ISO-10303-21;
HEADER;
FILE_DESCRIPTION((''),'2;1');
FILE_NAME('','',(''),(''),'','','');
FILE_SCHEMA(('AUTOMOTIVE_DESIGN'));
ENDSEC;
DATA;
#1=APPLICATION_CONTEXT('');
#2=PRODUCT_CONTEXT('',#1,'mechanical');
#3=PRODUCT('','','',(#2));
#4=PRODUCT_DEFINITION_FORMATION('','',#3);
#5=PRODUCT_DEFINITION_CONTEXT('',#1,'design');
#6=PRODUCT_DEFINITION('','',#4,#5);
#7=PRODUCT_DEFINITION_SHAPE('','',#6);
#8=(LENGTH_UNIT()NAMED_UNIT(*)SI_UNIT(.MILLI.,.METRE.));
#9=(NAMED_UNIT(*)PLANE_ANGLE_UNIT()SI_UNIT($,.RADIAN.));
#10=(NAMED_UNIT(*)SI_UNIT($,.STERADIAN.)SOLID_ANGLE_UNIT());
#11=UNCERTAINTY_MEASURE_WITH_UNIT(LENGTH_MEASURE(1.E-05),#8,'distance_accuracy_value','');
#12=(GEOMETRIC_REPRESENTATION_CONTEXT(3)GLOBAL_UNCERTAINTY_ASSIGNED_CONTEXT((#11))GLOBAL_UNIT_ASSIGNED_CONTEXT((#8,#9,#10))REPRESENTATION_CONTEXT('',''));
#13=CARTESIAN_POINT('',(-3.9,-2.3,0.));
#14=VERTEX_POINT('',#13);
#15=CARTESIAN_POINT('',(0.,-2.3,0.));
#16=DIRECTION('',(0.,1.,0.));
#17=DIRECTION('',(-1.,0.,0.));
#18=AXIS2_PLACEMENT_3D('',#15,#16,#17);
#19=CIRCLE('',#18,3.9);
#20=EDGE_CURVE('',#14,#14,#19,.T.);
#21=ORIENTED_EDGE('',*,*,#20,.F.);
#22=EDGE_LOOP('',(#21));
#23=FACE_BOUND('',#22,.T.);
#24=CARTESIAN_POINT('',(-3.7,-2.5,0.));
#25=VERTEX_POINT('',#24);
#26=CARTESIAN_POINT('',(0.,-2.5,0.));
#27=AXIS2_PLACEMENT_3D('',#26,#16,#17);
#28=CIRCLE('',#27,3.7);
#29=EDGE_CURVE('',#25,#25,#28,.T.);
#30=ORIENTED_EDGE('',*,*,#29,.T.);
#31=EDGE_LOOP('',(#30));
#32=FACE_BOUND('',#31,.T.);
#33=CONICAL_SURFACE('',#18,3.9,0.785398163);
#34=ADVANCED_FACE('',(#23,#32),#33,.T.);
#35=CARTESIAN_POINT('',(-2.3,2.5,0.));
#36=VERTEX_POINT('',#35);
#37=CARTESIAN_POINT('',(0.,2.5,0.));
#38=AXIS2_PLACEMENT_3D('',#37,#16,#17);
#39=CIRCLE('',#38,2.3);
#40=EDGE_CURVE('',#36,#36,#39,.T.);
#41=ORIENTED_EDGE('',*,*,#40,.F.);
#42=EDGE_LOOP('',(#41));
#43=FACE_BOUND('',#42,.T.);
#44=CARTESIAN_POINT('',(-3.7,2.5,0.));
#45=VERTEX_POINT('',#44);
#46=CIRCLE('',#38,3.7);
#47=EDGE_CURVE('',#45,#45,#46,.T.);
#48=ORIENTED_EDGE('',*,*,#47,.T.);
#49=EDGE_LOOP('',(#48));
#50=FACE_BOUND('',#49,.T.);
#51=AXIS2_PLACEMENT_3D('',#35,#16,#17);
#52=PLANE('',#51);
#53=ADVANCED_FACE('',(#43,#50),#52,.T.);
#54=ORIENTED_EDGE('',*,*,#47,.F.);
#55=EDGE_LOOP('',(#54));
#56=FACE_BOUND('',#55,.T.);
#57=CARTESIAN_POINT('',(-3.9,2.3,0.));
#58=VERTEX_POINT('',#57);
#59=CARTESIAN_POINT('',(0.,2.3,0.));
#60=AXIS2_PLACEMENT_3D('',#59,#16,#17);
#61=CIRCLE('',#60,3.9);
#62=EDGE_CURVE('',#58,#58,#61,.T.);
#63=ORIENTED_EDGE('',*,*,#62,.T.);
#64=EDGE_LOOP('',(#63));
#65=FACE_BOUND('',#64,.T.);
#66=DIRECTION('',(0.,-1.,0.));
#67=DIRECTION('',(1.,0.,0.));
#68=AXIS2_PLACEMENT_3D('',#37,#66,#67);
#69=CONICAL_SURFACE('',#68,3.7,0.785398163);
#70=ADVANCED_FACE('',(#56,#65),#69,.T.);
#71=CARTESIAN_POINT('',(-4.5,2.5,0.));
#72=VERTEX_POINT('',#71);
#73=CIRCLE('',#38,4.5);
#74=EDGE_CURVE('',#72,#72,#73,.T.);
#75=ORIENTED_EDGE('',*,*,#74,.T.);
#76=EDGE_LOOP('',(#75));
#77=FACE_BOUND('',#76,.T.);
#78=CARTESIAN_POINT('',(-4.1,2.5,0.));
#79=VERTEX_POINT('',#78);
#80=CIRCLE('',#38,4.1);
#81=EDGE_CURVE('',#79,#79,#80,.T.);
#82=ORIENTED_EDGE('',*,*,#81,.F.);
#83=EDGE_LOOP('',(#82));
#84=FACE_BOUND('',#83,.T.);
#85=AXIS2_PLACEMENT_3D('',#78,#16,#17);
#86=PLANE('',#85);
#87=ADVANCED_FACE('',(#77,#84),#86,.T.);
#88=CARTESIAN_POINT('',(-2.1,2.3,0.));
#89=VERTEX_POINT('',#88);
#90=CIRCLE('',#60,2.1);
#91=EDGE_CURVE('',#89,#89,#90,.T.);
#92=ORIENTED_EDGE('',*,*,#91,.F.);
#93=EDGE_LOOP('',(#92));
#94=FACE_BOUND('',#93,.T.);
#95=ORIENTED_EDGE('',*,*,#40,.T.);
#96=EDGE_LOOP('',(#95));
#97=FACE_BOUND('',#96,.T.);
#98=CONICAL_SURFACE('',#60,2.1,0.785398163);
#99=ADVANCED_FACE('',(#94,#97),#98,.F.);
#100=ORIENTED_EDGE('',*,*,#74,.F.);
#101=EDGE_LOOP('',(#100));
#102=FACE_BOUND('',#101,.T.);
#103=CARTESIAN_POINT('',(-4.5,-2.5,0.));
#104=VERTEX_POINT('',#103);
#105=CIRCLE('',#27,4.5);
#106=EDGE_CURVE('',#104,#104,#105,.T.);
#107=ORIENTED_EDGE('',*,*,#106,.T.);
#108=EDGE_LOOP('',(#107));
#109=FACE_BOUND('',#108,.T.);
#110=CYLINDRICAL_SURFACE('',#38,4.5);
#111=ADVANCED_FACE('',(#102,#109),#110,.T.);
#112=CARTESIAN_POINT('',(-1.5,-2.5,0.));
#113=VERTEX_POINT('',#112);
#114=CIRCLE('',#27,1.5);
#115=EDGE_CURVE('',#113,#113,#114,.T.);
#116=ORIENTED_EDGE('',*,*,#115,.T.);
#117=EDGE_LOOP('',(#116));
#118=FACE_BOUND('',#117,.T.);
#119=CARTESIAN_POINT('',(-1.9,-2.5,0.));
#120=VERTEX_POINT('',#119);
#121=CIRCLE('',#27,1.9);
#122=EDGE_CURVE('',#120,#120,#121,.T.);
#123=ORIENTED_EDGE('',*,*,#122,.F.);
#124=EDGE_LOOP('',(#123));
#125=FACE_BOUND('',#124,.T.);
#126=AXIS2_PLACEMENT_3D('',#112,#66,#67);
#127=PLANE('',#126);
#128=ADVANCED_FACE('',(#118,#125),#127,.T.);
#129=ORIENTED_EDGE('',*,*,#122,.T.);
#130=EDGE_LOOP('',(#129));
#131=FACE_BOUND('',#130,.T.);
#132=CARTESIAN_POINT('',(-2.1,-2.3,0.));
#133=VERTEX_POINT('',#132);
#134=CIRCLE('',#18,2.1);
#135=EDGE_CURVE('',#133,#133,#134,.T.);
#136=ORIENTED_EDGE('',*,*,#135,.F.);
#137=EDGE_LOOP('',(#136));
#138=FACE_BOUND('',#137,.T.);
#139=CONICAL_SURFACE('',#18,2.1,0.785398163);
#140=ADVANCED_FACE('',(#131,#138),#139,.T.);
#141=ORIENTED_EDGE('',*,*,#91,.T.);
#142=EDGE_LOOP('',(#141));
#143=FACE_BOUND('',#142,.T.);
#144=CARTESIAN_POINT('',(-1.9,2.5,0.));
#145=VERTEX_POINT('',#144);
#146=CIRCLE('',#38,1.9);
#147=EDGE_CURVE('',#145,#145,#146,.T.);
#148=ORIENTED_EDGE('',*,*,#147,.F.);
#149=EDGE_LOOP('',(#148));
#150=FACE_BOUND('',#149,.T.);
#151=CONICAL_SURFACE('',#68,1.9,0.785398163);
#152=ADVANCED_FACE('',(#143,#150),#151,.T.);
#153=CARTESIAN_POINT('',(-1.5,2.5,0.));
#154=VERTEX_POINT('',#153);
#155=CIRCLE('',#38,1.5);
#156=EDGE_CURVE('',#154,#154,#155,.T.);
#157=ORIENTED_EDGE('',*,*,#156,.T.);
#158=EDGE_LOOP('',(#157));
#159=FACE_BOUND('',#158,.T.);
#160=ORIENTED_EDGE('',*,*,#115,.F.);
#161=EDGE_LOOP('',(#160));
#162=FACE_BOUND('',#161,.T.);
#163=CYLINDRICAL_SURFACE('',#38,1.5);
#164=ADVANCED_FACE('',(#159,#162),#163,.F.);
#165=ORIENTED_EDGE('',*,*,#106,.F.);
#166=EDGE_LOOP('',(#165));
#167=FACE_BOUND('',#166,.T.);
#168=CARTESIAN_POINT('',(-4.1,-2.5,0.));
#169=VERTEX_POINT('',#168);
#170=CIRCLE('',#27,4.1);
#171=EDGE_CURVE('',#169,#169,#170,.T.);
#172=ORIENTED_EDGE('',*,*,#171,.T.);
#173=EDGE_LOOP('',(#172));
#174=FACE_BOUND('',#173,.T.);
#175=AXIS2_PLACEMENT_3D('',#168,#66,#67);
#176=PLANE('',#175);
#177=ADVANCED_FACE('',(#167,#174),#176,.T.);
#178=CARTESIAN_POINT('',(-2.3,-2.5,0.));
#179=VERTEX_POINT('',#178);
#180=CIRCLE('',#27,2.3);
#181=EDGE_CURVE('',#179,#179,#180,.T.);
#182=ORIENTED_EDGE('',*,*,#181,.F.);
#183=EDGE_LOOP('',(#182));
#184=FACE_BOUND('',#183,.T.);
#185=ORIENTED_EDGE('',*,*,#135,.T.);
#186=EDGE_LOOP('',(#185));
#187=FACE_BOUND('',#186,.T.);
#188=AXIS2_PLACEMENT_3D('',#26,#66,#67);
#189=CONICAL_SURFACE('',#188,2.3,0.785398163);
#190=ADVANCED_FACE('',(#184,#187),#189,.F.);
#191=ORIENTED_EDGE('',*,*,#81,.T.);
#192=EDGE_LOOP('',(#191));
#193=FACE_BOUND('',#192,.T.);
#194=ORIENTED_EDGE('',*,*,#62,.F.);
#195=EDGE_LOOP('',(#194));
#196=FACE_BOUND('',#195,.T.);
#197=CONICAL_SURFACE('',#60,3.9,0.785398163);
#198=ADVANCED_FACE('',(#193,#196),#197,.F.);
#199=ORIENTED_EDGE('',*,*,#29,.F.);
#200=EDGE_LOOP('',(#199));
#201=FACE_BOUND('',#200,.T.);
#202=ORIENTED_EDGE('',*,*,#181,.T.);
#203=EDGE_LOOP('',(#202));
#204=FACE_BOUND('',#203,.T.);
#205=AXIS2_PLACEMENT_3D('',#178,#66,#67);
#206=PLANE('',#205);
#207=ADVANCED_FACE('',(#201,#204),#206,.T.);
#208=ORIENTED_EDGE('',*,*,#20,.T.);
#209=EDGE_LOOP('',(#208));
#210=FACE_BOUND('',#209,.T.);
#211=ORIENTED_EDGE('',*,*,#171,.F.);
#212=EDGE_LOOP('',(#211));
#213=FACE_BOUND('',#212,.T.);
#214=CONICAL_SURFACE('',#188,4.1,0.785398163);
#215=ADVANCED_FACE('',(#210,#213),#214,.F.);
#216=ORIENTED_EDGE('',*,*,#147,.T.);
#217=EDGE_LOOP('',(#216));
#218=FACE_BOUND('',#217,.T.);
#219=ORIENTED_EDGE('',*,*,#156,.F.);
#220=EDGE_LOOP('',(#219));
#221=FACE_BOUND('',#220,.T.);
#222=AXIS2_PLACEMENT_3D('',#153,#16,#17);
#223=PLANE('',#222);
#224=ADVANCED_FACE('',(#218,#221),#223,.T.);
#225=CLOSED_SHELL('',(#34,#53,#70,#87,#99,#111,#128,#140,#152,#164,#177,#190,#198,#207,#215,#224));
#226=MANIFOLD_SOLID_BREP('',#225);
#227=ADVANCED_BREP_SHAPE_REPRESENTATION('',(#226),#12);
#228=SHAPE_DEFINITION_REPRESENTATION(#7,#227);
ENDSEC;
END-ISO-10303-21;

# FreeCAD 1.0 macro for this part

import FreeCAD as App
import Part
import Sketcher

doc = App.newDocument("Part")
params = doc.addObject("Spreadsheet::Sheet", "Params")
for row, (alias, value) in enumerate([
    ("sketch1_height", "5 mm"),
    ("sketch1_width", "0.4 mm"),
    ("sketch1_width2", "1.4 mm"),
    ("revolution_angle", "360 deg"),
], start=1):
    params.set(f"A{row}", alias)
    params.set(f"B{row}", "=" + value)
    params.setAlias(f"B{row}", alias)

body = doc.addObject("PartDesign::Body", "Body")

# Sketch on XY plane
sketch1 = body.newObject("Sketcher::SketchObject", "Sketch")
sketch1.AttachmentSupport = (doc.getObject("XY_Plane"), [""])
sketch1.MapMode = "FlatFace"
sketch1.addGeometry([
    Part.LineSegment(App.Vector(-1.5, 2.5, 0), App.Vector(-1.9, 2.5, 0)),  # 0
    Part.LineSegment(App.Vector(-1.9, 2.5, 0), App.Vector(-2.1, 2.3, 0)),  # 1
    Part.LineSegment(App.Vector(-2.1, 2.3, 0), App.Vector(-2.3, 2.5, 0)),  # 2
    Part.LineSegment(App.Vector(-2.3, 2.5, 0), App.Vector(-3.7, 2.5, 0)),  # 3
    Part.LineSegment(App.Vector(-3.7, 2.5, 0), App.Vector(-3.9, 2.3, 0)),  # 4
    Part.LineSegment(App.Vector(-3.9, 2.3, 0), App.Vector(-4.1, 2.5, 0)),  # 5
    Part.LineSegment(App.Vector(-4.1, 2.5, 0), App.Vector(-4.5, 2.5, 0)),  # 6
    Part.LineSegment(App.Vector(-4.5, 2.5, 0), App.Vector(-4.5, -2.5, 0)),  # 7
    Part.LineSegment(App.Vector(-4.5, -2.5, 0), App.Vector(-4.1, -2.5, 0)),  # 8
    Part.LineSegment(App.Vector(-4.1, -2.5, 0), App.Vector(-3.9, -2.3, 0)),  # 9
    Part.LineSegment(App.Vector(-3.9, -2.3, 0), App.Vector(-3.7, -2.5, 0)),  # 10
    Part.LineSegment(App.Vector(-3.7, -2.5, 0), App.Vector(-2.3, -2.5, 0)),  # 11
    Part.LineSegment(App.Vector(-2.3, -2.5, 0), App.Vector(-2.1, -2.3, 0)),  # 12
    Part.LineSegment(App.Vector(-2.1, -2.3, 0), App.Vector(-1.9, -2.5, 0)),  # 13
    Part.LineSegment(App.Vector(-1.9, -2.5, 0), App.Vector(-1.5, -2.5, 0)),  # 14
    Part.LineSegment(App.Vector(-1.5, -2.5, 0), App.Vector(-1.5, 2.5, 0)),  # 15
], False)
sketch1.addConstraint([
    Sketcher.Constraint("Coincident", 0, 2, 1, 1),
    Sketcher.Constraint("Coincident", 1, 2, 2, 1),
    Sketcher.Constraint("Coincident", 2, 2, 3, 1),
    Sketcher.Constraint("Coincident", 3, 2, 4, 1),
    Sketcher.Constraint("Coincident", 4, 2, 5, 1),
    Sketcher.Constraint("Coincident", 5, 2, 6, 1),
    Sketcher.Constraint("Coincident", 6, 2, 7, 1),
    Sketcher.Constraint("Coincident", 7, 2, 8, 1),
    Sketcher.Constraint("Coincident", 8, 2, 9, 1),
    Sketcher.Constraint("Coincident", 9, 2, 10, 1),
    Sketcher.Constraint("Coincident", 10, 2, 11, 1),
    Sketcher.Constraint("Coincident", 11, 2, 12, 1),
    Sketcher.Constraint("Coincident", 12, 2, 13, 1),
    Sketcher.Constraint("Coincident", 13, 2, 14, 1),
    Sketcher.Constraint("Coincident", 14, 2, 15, 1),
    Sketcher.Constraint("Coincident", 15, 2, 0, 1),
    Sketcher.Constraint("Horizontal", 0),
    Sketcher.Constraint("Horizontal", 3),
    Sketcher.Constraint("Horizontal", 6),
    Sketcher.Constraint("Vertical", 7),
    Sketcher.Constraint("Horizontal", 8),
    Sketcher.Constraint("Horizontal", 11),
    Sketcher.Constraint("Horizontal", 14),
    Sketcher.Constraint("Vertical", 15),
    Sketcher.Constraint("Symmetric", 5, 2, 8, 2, -1),
    Sketcher.Constraint("Symmetric", 4, 2, 9, 2, -1),
    Sketcher.Constraint("Symmetric", 3, 2, 10, 2, -1),
    Sketcher.Constraint("Symmetric", 1, 2, 12, 2, -1),
    Sketcher.Constraint("Symmetric", 0, 2, 13, 2, -1),
    Sketcher.Constraint("Perpendicular", 1, 2),
    Sketcher.Constraint("Perpendicular", 2, 4),
    Sketcher.Constraint("Perpendicular", 4, 5),
    Sketcher.Constraint("Perpendicular", 5, 9),
    Sketcher.Constraint("Perpendicular", 10, 12),
    Sketcher.Constraint("Horizontal", 0, 2, 2, 2),
    Sketcher.Constraint("Horizontal", 1, 2, 4, 2),
    Sketcher.Constraint("Horizontal", 3, 2, 5, 2),
    Sketcher.Constraint("Equal", 0, 6),
    Sketcher.Constraint("DistanceY", 7, 2, 7, 1, 5.0),
    Sketcher.Constraint("DistanceX", 0, 2, 0, 1, 0.4),
    Sketcher.Constraint("DistanceX", 3, 2, 3, 1, 1.4),
    Sketcher.Constraint("DistanceX", 4, 2, 0, 2, 2.0),
    Sketcher.Constraint("DistanceX", 0, 2, -1, 1, 1.9),
])
sketch1.setExpression("Constraints[38]", "Params.sketch1_height")
sketch1.setExpression("Constraints[39]", "Params.sketch1_width")
sketch1.setExpression("Constraints[40]", "Params.sketch1_width2")
revolution = body.newObject("PartDesign::Revolution", "Revolution")
revolution.Profile = sketch1
revolution.ReferenceAxis = (sketch1, ["V_Axis"])
revolution.setExpression("Angle", "Params.revolution_angle")

doc.recompute()
